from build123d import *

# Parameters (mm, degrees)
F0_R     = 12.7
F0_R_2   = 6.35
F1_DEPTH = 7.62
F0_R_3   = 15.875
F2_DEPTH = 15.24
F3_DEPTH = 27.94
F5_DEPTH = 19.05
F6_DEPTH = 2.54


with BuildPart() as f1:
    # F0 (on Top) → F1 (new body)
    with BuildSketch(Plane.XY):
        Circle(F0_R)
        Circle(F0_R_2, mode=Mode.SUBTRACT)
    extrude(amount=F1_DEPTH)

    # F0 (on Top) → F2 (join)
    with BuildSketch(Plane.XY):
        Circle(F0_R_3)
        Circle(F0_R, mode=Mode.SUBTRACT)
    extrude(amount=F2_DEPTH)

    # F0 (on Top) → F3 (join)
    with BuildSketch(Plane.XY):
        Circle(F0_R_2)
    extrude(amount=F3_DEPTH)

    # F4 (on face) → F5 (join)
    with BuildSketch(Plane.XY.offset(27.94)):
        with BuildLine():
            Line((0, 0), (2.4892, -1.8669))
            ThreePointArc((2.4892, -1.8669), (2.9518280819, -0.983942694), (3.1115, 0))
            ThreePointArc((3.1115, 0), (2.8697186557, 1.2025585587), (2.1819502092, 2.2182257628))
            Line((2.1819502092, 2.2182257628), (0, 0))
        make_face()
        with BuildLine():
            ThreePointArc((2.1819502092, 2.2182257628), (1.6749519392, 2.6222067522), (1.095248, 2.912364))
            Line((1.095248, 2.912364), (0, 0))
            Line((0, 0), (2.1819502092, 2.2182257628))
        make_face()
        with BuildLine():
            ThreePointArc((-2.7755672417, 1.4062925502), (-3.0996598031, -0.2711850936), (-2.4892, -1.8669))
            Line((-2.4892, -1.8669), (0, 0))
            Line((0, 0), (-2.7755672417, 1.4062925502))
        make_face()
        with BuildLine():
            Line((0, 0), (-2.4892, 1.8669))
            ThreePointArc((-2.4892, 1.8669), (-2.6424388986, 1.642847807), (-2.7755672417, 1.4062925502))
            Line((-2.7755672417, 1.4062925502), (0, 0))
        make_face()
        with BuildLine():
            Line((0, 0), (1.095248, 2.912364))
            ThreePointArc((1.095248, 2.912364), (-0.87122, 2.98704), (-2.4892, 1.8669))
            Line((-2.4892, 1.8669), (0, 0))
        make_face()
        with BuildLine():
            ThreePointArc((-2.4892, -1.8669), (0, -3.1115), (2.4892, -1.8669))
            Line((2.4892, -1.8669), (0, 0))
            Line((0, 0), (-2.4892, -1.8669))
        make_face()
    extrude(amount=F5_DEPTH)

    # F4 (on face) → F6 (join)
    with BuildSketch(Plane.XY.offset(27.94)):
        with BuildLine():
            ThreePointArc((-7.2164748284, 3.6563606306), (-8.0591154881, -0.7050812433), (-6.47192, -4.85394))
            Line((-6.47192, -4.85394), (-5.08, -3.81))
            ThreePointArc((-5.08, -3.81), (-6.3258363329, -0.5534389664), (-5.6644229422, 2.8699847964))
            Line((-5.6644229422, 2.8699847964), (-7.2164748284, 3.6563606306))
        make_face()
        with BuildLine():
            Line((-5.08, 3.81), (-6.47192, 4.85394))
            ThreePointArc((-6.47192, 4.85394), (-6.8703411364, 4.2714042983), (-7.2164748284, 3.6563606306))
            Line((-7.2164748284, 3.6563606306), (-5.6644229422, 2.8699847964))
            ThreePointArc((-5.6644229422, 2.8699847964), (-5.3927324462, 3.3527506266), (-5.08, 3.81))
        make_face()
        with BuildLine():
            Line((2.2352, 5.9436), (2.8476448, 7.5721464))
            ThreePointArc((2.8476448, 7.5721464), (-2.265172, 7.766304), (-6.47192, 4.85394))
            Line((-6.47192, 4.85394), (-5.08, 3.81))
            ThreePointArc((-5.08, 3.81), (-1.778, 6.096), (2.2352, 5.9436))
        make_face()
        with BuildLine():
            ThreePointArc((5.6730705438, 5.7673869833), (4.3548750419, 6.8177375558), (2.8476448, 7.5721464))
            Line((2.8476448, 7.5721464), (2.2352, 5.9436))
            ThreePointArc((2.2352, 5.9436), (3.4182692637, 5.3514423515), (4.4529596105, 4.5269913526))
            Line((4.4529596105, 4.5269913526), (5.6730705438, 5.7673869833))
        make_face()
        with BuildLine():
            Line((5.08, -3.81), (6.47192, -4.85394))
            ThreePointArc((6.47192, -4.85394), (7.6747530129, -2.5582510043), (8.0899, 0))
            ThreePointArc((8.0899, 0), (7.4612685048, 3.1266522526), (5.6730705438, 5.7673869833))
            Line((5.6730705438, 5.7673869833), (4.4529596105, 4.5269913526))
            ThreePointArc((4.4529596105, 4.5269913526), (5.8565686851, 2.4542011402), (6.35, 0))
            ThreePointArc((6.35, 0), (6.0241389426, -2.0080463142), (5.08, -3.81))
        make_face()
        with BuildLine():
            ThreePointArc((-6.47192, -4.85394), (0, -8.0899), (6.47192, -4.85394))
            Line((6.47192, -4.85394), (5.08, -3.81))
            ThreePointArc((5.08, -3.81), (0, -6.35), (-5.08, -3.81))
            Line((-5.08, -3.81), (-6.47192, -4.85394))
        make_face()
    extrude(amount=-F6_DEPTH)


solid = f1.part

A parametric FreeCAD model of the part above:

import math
import FreeCAD as App
import Part
import Sketcher

V = App.Vector
Q = App.Units.Quantity

doc = App.newDocument("Part")
body = doc.addObject("PartDesign::Body", "Body")

# Sketch on XY plane
sketch1 = body.newObject("Sketcher::SketchObject", "Sketch")
sketch1.AttachmentSupport = (doc.getObject("XY_Plane"), [""])
sketch1.MapMode = "FlatFace"
sketch1.addGeometry([
    Part.Circle(V(0, 0, 0), V(0, 0, 1), 13),
    Part.Circle(V(0, 0, 0), V(0, 0, 1), 6),
], False)
sketch1.addConstraint([
    Sketcher.Constraint("Coincident", 0, 3, -1, 1),
    Sketcher.Constraint("Coincident", 1, 3, -1, 1),
    Sketcher.Constraint("Diameter", 0, Q("1 in")),
    Sketcher.Constraint("Diameter", 1, Q("0.5 in")),
])
pad1 = body.newObject("PartDesign::Pad", "Pad")
pad1.Profile = sketch1
pad1.Length = Q("0.3 in")

# Sketch on XY plane
sketch2 = body.newObject("Sketcher::SketchObject", "Sketch001")
sketch2.AttachmentSupport = (doc.getObject("XY_Plane"), [""])
sketch2.MapMode = "FlatFace"
sketch2.addGeometry([
    Part.Circle(V(0, 0, 0), V(0, 0, 1), 16),
    Part.Circle(V(0, 0, 0), V(0, 0, 1), 13),
], False)
sketch2.addConstraint([
    Sketcher.Constraint("Coincident", 0, 3, -1, 1),
    Sketcher.Constraint("Coincident", 1, 3, -1, 1),
    Sketcher.Constraint("Diameter", 1, Q("1 in")),
    Sketcher.Constraint("Diameter", 0, Q("1.25 in")),
])
pad2 = body.newObject("PartDesign::Pad", "Pad001")
pad2.Profile = sketch2
pad2.Length = Q("0.6 in")

# Sketch on XY plane
sketch3 = body.newObject("Sketcher::SketchObject", "Sketch002")
sketch3.AttachmentSupport = (doc.getObject("XY_Plane"), [""])
sketch3.MapMode = "FlatFace"
sketch3.addGeometry(Part.Circle(V(0, 0, 0), V(0, 0, 1), 6), False)
sketch3.addConstraint([
    Sketcher.Constraint("Coincident", 0, 3, -1, 1),
    Sketcher.Constraint("Diameter", 0, Q("0.5 in")),
])
pad3 = body.newObject("PartDesign::Pad", "Pad002")
pad3.Profile = sketch3
pad3.Length = Q("1.1 in")

# Sketch on XY plane
sketch4 = body.newObject("Sketcher::SketchObject", "Sketch003")
sketch4.AttachmentSupport = (doc.getObject("XY_Plane"), [""])
sketch4.MapMode = "FlatFace"
sketch4.AttachmentOffset = App.Placement(V(0, 0, 1.1 * 25.4), App.Rotation())
sketch4.addGeometry([
    Part.ArcOfCircle(Part.Circle(V(0, 0, 0), V(0, 0, 1), 3.1), math.radians(-37), math.radians(0)),  # 0
    Part.ArcOfCircle(Part.Circle(V(0, 0, 0), V(0, 0, 1), 3.1), math.radians(0), math.radians(45)),  # 1
    Part.ArcOfCircle(Part.Circle(V(0, 0, 0), V(0, 0, 1), 3.1), math.radians(45), math.radians(69)),  # 2
    Part.ArcOfCircle(Part.Circle(V(0, 0, 0), V(0, 0, 1), 3.1), math.radians(69), math.radians(143)),  # 3
    Part.ArcOfCircle(Part.Circle(V(0, 0, 0), V(0, 0, 1), 3.1), math.radians(143.13), math.radians(153.13)),  # 4
    Part.ArcOfCircle(Part.Circle(V(0, 0, 0), V(0, 0, 1), 3.1), math.radians(153), math.radians(217)),  # 5
    Part.ArcOfCircle(Part.Circle(V(0, 0, 0), V(0, 0, 1), 3.1), math.radians(-143), math.radians(-37)),  # 6
], False)
sketch4.addConstraint([
    Sketcher.Constraint("Tangent", 0, 2, 1, 1),
    Sketcher.Constraint("Tangent", 1, 2, 2, 1),
    Sketcher.Constraint("Tangent", 2, 2, 3, 1),
    Sketcher.Constraint("Tangent", 3, 2, 4, 1),
    Sketcher.Constraint("Tangent", 4, 2, 5, 1),
    Sketcher.Constraint("Tangent", 5, 2, 6, 1),
    Sketcher.Constraint("Tangent", 6, 2, 0, 1),
    Sketcher.Constraint("Coincident", 0, 3, -1, 1),
    Sketcher.Constraint("Coincident", 2, 3, -1, 1),
    Sketcher.Constraint("Coincident", 4, 3, -1, 1),
    Sketcher.Constraint("PointOnObject", 0, 2, -1),
    Sketcher.Constraint("Horizontal", 5, 2, 6, 2),
    Sketcher.Constraint("Vertical", 3, 2, 5, 2),
    Sketcher.Constraint("Radius", 0, Q("0.1225 in")),
    Sketcher.Constraint("DistanceX", 3, 2, -1, 1, Q("0.098 in")),
    Sketcher.Constraint("DistanceX", -1, 1, 1, 2, Q("2.18195 mm")),
    Sketcher.Constraint("DistanceY", 1, 2, 2, 2, Q("0.694138 mm")),
    Sketcher.Constraint("DistanceX", 4, 2, -1, 1, Q("2.775567 mm")),
])
pad4 = body.newObject("PartDesign::Pad", "Pad003")
pad4.Profile = sketch4
pad4.Length = Q("0.75 in")

# Sketch on XY plane
sketch5 = body.newObject("Sketcher::SketchObject", "Sketch004")
sketch5.AttachmentSupport = (doc.getObject("XY_Plane"), [""])
sketch5.MapMode = "FlatFace"
sketch5.AttachmentOffset = App.Placement(V(0, 0, 1.1 * 25.4), App.Rotation())
sketch5.addGeometry([
    Part.ArcOfCircle(Part.Circle(V(0, 0, 0), V(0, 0, 1), 8.1), math.radians(143.13), math.radians(153.13)),  # 0
    Part.ArcOfCircle(Part.Circle(V(0, 0, 0), V(0, 0, 1), 8.1), math.radians(153), math.radians(217)),  # 1
    Part.ArcOfCircle(Part.Circle(V(0, 0, 0), V(0, 0, 1), 8.1), math.radians(-143), math.radians(0)),  # 2
    Part.ArcOfCircle(Part.Circle(V(0, 0, 0), V(0, 0, 1), 8.1), math.radians(0), math.radians(45)),  # 3
    Part.ArcOfCircle(Part.Circle(V(0, 0, 0), V(0, 0, 1), 8.1), math.radians(45), math.radians(69)),  # 4
    Part.ArcOfCircle(Part.Circle(V(0, 0, 0), V(0, 0, 1), 8.1), math.radians(69), math.radians(143)),  # 5
    Part.ArcOfCircle(Part.Circle(V(0, 0, 0), V(0, 0, 1), 6.3), math.radians(153), math.radians(217)),  # 6
    Part.ArcOfCircle(Part.Circle(V(0, 0, 0), V(0, 0, 1), 6.3), math.radians(143.13), math.radians(153.13)),  # 7
    Part.ArcOfCircle(Part.Circle(V(0, 0, 0), V(0, 0, 1), 6.3), math.radians(69), math.radians(143)),  # 8
    Part.ArcOfCircle(Part.Circle(V(0, 0, 0), V(0, 0, 1), 6.3), math.radians(45), math.radians(69)),  # 9
    Part.ArcOfCircle(Part.Circle(V(0, 0, 0), V(0, 0, 1), 6.3), math.radians(0), math.radians(45)),  # 10
    Part.ArcOfCircle(Part.Circle(V(0, 0, 0), V(0, 0, 1), 6.3), math.radians(-37), math.radians(0)),  # 11
    Part.ArcOfCircle(Part.Circle(V(0, 0, 0), V(0, 0, 1), 6.3), math.radians(-143), math.radians(-37)),  # 12
], False)
sketch5.addConstraint([
    Sketcher.Constraint("Tangent", 0, 2, 1, 1),
    Sketcher.Constraint("Tangent", 1, 2, 2, 1),
    Sketcher.Constraint("Tangent", 2, 2, 3, 1),
    Sketcher.Constraint("Tangent", 3, 2, 4, 1),
    Sketcher.Constraint("Tangent", 4, 2, 5, 1),
    Sketcher.Constraint("Tangent", 5, 2, 0, 1),
    Sketcher.Constraint("Tangent", 6, 1, 7, 2),
    Sketcher.Constraint("Tangent", 7, 1, 8, 2),
    Sketcher.Constraint("Tangent", 8, 1, 9, 2),
    Sketcher.Constraint("Tangent", 9, 1, 10, 2),
    Sketcher.Constraint("Tangent", 10, 1, 11, 2),
    Sketcher.Constraint("Tangent", 11, 1, 12, 2),
    Sketcher.Constraint("Tangent", 12, 1, 6, 2),
    Sketcher.Constraint("Coincident", 0, 3, -1, 1),
    Sketcher.Constraint("Coincident", 2, 3, -1, 1),
    Sketcher.Constraint("Coincident", 6, 3, -1, 1),
    Sketcher.Constraint("Coincident", 8, 3, -1, 1),
    Sketcher.Constraint("Coincident", 10, 3, -1, 1),
    Sketcher.Constraint("Equal", 2, 3),
    Sketcher.Constraint("PointOnObject", 2, 2, -1),
    Sketcher.Constraint("PointOnObject", 10, 1, -1),
    Sketcher.Constraint("Horizontal", 11, 1, 12, 1),
    Sketcher.Constraint("Vertical", 1, 2, 5, 2),
    Sketcher.Constraint("Vertical", 7, 1, 12, 1),
    Sketcher.Constraint("Radius", 6, Q("0.25 in")),
    Sketcher.Constraint("DistanceX", 7, 1, -1, 1, Q("0.2 in")),
    Sketcher.Constraint("Radius", 0, Q("0.3185 in")),
    Sketcher.Constraint("DistanceX", -1, 1, 8, 1, Q("0.088 in")),
    Sketcher.Constraint("DistanceX", 1, 2, -1, 1, Q("0.2548 in")),
    Sketcher.Constraint("DistanceY", -1, 1, 0, 2, Q("3.656361 mm")),
    Sketcher.Constraint("DistanceX", -1, 1, 3, 2, Q("5.673071 mm")),
    Sketcher.Constraint("DistanceX", -1, 1, 9, 1, Q("4.45296 mm")),
    Sketcher.Constraint("DistanceY", 3, 2, 4, 2, Q("1.804759 mm")),
    Sketcher.Constraint("DistanceX", 0, 2, 6, 1, Q("1.552052 mm")),
])
pad5 = body.newObject("PartDesign::Pad", "Pad004")
pad5.Profile = sketch5
pad5.Length = Q("0.1 in")
pad5.Reversed = True

doc.recompute()
